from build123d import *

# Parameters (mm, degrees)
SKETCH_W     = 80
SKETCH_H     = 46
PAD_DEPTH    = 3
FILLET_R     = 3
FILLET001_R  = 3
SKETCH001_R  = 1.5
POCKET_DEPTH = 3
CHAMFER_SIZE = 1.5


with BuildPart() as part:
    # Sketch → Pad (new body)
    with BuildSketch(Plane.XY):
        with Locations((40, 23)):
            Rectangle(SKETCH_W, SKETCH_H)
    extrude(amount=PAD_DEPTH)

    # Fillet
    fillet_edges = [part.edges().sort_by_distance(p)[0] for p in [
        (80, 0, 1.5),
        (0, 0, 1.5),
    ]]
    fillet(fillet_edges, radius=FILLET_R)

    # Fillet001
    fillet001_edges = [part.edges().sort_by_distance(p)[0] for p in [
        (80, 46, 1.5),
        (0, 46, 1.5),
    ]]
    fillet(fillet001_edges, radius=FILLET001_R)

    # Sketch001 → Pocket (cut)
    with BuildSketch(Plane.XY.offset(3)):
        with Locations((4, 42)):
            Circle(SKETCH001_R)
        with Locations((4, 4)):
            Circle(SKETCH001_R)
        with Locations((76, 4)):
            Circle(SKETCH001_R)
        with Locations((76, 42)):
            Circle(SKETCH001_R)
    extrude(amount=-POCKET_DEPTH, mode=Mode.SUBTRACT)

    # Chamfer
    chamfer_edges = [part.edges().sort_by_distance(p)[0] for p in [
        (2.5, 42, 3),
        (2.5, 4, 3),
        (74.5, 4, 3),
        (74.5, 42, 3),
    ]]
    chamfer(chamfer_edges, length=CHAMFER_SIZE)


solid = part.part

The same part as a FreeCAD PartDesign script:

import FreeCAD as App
import Part
import Sketcher
from FreeCAD import Vector
Q = App.Units.Quantity


def edges_at(feature, points):
    """Names of the edges that pass closest to the given points."""
    edges = feature.Shape.Edges
    near = lambda p: min(range(len(edges)), key=lambda i: edges[i].distToShape(Part.Vertex(*p))[0])
    return sorted({f"Edge{near(p) + 1}" for p in points})

doc = App.newDocument("Part")
body = doc.addObject("PartDesign::Body", "Body")

sketch1 = body.newObject("Sketcher::SketchObject", "Sketch")
sketch1.AttachmentSupport = (doc.getObject("XY_Plane"), [""])
sketch1.MapMode = "FlatFace"
sketch1.addGeometry([
    Part.LineSegment(Vector(0, 46, 0), Vector(0, 0, 0)),
    Part.LineSegment(Vector(0, 0, 0), Vector(80, 0, 0)),
    Part.LineSegment(Vector(80, 0, 0), Vector(80, 46, 0)),
    Part.LineSegment(Vector(80, 46, 0), Vector(0, 46, 0)),
], False)
sketch1.addConstraint([
    Sketcher.Constraint("Coincident", 0, 2, 1, 1),
    Sketcher.Constraint("Coincident", 1, 2, 2, 1),
    Sketcher.Constraint("Coincident", 2, 2, 3, 1),
    Sketcher.Constraint("Coincident", 3, 2, 0, 1),
    Sketcher.Constraint("Vertical", 0),
    Sketcher.Constraint("Horizontal", 1),
    Sketcher.Constraint("Vertical", 2),
    Sketcher.Constraint("Horizontal", 3),
    Sketcher.Constraint("Coincident", 0, 2, -1, 1),
    Sketcher.Constraint("DistanceX", 1, 1, 1, 2, Q("80 mm")),
    Sketcher.Constraint("DistanceY", 0, 2, 0, 1, Q("46 mm")),
])
pad1 = body.newObject("PartDesign::Pad", "Pad")
pad1.Profile = sketch1
pad1.Length = 3
doc.recompute()

fillet = body.newObject("PartDesign::Fillet", "Fillet")
fillet.Base = (pad1, edges_at(pad1, [(80, 0, 1.5), (0, 0, 1.5)]))
fillet.Radius = 3
doc.recompute()

fillet2 = body.newObject("PartDesign::Fillet", "Fillet001")
fillet2.Base = (fillet, edges_at(fillet, [(80, 46, 1.5), (0, 46, 1.5)]))
fillet2.Radius = 3

sketch2 = body.newObject("Sketcher::SketchObject", "Sketch001")
sketch2.AttachmentSupport = (doc.getObject("XY_Plane"), [""])
sketch2.MapMode = "FlatFace"
sketch2.AttachmentOffset = App.Placement(Vector(0, 0, 3), App.Rotation())
sketch2.addGeometry([
    Part.Circle(Vector(4, 42, 0), Vector(0, 0, 1), 1.5),
    Part.Circle(Vector(4, 4, 0), Vector(0, 0, 1), 1.5),
    Part.Circle(Vector(76, 4, 0), Vector(0, 0, 1), 1.5),
    Part.Circle(Vector(76, 42, 0), Vector(0, 0, 1), 1.5),
], False)
sketch2.addConstraint([
    Sketcher.Constraint("Equal", 0, 1),
    Sketcher.Constraint("Equal", 1, 2),
    Sketcher.Constraint("Equal", 2, 3),
    Sketcher.Constraint("Horizontal", 1, 3, 2, 3),
    Sketcher.Constraint("Horizontal", 0, 3, 3, 3),
    Sketcher.Constraint("Vertical", 0, 3, 1, 3),
    Sketcher.Constraint("Vertical", 2, 3, 3, 3),
    Sketcher.Constraint("Diameter", 0, Q("3 mm")),
    Sketcher.Constraint("DistanceX", -1, 1, 0, 3, Q("4 mm")),
    Sketcher.Constraint("DistanceY", -1, 1, 0, 3, Q("42 mm")),
    Sketcher.Constraint("DistanceY", -1, 1, 1, 3, Q("4 mm")),
    Sketcher.Constraint("DistanceX", -1, 1, 2, 3, Q("76 mm")),
])
pocket1 = body.newObject("PartDesign::Pocket", "Pocket")
pocket1.Profile = sketch2
pocket1.Length = 3
doc.recompute()

chamfer = body.newObject("PartDesign::Chamfer", "Chamfer")
chamfer.Base = (pocket1, edges_at(pocket1, [
    (2.5, 42, 3),
    (2.5, 4, 3),
    (74.5, 4, 3),
    (74.5, 42, 3),
]))
chamfer.Size = 1.5

doc.recompute()
